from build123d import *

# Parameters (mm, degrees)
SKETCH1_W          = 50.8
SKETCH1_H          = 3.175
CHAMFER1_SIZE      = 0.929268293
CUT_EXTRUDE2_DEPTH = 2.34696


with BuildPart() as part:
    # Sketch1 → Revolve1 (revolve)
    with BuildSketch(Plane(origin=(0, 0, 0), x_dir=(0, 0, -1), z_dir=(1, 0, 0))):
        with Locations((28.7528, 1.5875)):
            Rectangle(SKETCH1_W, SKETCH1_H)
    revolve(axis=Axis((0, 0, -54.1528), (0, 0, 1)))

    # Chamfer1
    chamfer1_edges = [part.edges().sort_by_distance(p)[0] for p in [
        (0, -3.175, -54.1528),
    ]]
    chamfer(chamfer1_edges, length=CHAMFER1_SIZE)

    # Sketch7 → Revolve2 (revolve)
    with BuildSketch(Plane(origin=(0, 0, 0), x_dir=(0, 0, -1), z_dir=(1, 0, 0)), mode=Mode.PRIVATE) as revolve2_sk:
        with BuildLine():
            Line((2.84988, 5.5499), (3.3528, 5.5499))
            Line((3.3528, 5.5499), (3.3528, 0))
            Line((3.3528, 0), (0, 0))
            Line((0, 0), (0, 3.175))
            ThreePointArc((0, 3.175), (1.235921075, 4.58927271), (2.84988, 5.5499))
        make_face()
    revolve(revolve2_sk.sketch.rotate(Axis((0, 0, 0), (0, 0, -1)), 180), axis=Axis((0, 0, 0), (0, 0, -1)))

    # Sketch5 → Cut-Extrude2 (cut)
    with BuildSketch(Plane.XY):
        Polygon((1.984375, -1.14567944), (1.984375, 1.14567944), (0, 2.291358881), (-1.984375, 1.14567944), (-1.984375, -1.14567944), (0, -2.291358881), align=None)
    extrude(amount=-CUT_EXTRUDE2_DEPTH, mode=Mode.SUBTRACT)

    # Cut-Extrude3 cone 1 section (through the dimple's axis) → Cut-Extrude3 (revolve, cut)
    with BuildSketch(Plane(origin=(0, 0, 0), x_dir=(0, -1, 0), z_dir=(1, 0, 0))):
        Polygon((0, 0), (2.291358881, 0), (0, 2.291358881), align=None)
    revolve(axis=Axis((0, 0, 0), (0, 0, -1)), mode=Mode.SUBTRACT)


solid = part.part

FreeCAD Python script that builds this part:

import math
import FreeCAD as App
import Part
import Sketcher

V = App.Vector
Q = App.Units.Quantity


def edges_at(feature, points):
    """Names of the edges that pass closest to the given points."""
    edges = feature.Shape.Edges
    near = lambda p: min(range(len(edges)), key=lambda i: edges[i].distToShape(Part.Vertex(*p))[0])
    return sorted({f"Edge{near(p) + 1}" for p in points})

doc = App.newDocument("Part")
body = doc.addObject("PartDesign::Body", "Body")

# Sketch on YZ plane
sketch1 = body.newObject("Sketcher::SketchObject", "Sketch")
sketch1.AttachmentSupport = (doc.getObject("YZ_Plane"), [""])
sketch1.MapMode = "FlatFace"
sketch1.addGeometry(Part.LineSegment(V(3.2, -3.4, 0), V(0, -3.4, 0)), False)
sketch1.addGeometry(Part.LineSegment(V(0, -3.4, 0), V(0, -54.2, 0)), False)
sketch1.addGeometry(Part.LineSegment(V(0, -54.2, 0), V(3.2, -54.2, 0)), False)
sketch1.addGeometry(Part.LineSegment(V(3.2, -54.2, 0), V(3.2, -3.4, 0)), False)
sketch1.addConstraint(Sketcher.Constraint("Coincident", 0, 2, 1, 1))
sketch1.addConstraint(Sketcher.Constraint("Coincident", 1, 2, 2, 1))
sketch1.addConstraint(Sketcher.Constraint("Coincident", 2, 2, 3, 1))
sketch1.addConstraint(Sketcher.Constraint("Coincident", 3, 2, 0, 1))
sketch1.addConstraint(Sketcher.Constraint("Horizontal", 0))
sketch1.addConstraint(Sketcher.Constraint("Vertical", 1))
sketch1.addConstraint(Sketcher.Constraint("Horizontal", 2))
sketch1.addConstraint(Sketcher.Constraint("Vertical", 3))
sketch1.addConstraint(Sketcher.Constraint("PointOnObject", 0, 2, -2))
sketch1.addConstraint(Sketcher.Constraint("DistanceY", 1, 2, 1, 1, Q("2 in")))
sketch1.addConstraint(Sketcher.Constraint("DistanceX", 0, 2, 0, 1, Q("0.125 in")))
sketch1.addConstraint(Sketcher.Constraint("DistanceY", 0, 2, -1, 1, Q("0.132 in")))
revolution = body.newObject("PartDesign::Revolution", "Revolution")
revolution.Profile = sketch1
revolution.ReferenceAxis = (sketch1, ["V_Axis"])
revolution.Angle = 360
doc.recompute()

chamfer = body.newObject("PartDesign::Chamfer", "Chamfer")
chamfer.Base = (revolution, edges_at(revolution, [(0, -3.175, -54.153)]))
chamfer.Size = 0.929268

# Sketch on YZ plane
sketch2 = body.newObject("Sketcher::SketchObject", "Sketch001")
sketch2.AttachmentSupport = (doc.getObject("YZ_Plane"), [""])
sketch2.MapMode = "FlatFace"
sketch2.addGeometry(Part.LineSegment(V(5.5, -3.4, 0), V(5.5, -2.8, 0)), False)
sketch2.addGeometry(Part.ArcOfCircle(Part.Circle(V(0, -5.1, 0), V(0, 0, 1), 6), math.radians(22), math.radians(58)), False)
sketch2.addGeometry(Part.LineSegment(V(3.2, 0, 0), V(0, 0, 0)), False)
sketch2.addGeometry(Part.LineSegment(V(0, 0, 0), V(0, -3.4, 0)), False)
sketch2.addGeometry(Part.LineSegment(V(0, -3.4, 0), V(5.5, -3.4, 0)), False)
sketch2.addConstraint(Sketcher.Constraint("Coincident", 0, 2, 1, 1))
sketch2.addConstraint(Sketcher.Constraint("Coincident", 1, 2, 2, 1))
sketch2.addConstraint(Sketcher.Constraint("Coincident", 2, 2, 3, 1))
sketch2.addConstraint(Sketcher.Constraint("Coincident", 3, 2, 4, 1))
sketch2.addConstraint(Sketcher.Constraint("Coincident", 4, 2, 0, 1))
sketch2.addConstraint(Sketcher.Constraint("Vertical", 0))
sketch2.addConstraint(Sketcher.Constraint("Horizontal", 2))
sketch2.addConstraint(Sketcher.Constraint("Vertical", 3))
sketch2.addConstraint(Sketcher.Constraint("Horizontal", 4))
sketch2.addConstraint(Sketcher.Constraint("Coincident", 2, 2, -1, 1))
sketch2.addConstraint(Sketcher.Constraint("PointOnObject", 1, 3, -2))
sketch2.addConstraint(Sketcher.Constraint("DistanceX", 2, 2, 2, 1, Q("0.125 in")))
sketch2.addConstraint(Sketcher.Constraint("DistanceY", 3, 2, 3, 1, Q("0.132 in")))
sketch2.addConstraint(Sketcher.Constraint("DistanceX", 4, 1, 4, 2, Q("0.2185 in")))
sketch2.addConstraint(Sketcher.Constraint("DistanceY", 0, 1, 0, 2, Q("0.0198 in")))
revolution2 = body.newObject("PartDesign::Revolution", "Revolution001")
revolution2.Profile = sketch2
revolution2.ReferenceAxis = (sketch2, ["V_Axis"])
revolution2.Angle = 360

# Sketch on XY plane
sketch3 = body.newObject("Sketcher::SketchObject", "Sketch002")
sketch3.AttachmentSupport = (doc.getObject("XY_Plane"), [""])
sketch3.MapMode = "FlatFace"
sketch3.addGeometry(Part.LineSegment(V(2, -1.1, 0), V(2, 1.1, 0)), False)
sketch3.addGeometry(Part.LineSegment(V(2, 1.1, 0), V(0, 2.3, 0)), False)
sketch3.addGeometry(Part.LineSegment(V(0, 2.3, 0), V(-2, 1.1, 0)), False)
sketch3.addGeometry(Part.LineSegment(V(-2, 1.1, 0), V(-2, -1.1, 0)), False)
sketch3.addGeometry(Part.LineSegment(V(-2, -1.1, 0), V(0, -2.3, 0)), False)
sketch3.addGeometry(Part.LineSegment(V(0, -2.3, 0), V(2, -1.1, 0)), False)
sketch3.addConstraint(Sketcher.Constraint("Coincident", 0, 2, 1, 1))
sketch3.addConstraint(Sketcher.Constraint("Coincident", 1, 2, 2, 1))
sketch3.addConstraint(Sketcher.Constraint("Coincident", 2, 2, 3, 1))
sketch3.addConstraint(Sketcher.Constraint("Coincident", 3, 2, 4, 1))
sketch3.addConstraint(Sketcher.Constraint("Coincident", 4, 2, 5, 1))
sketch3.addConstraint(Sketcher.Constraint("Coincident", 5, 2, 0, 1))
sketch3.addConstraint(Sketcher.Constraint("Vertical", 0))
sketch3.addConstraint(Sketcher.Constraint("Vertical", 3))
sketch3.addConstraint(Sketcher.Constraint("Symmetric", 0, 2, 3, 2, -1, 1))
sketch3.addConstraint(Sketcher.Constraint("Symmetric", 1, 2, 4, 2, -1, 1))
sketch3.addConstraint(Sketcher.Constraint("PointOnObject", 1, 2, -2))
sketch3.addConstraint(Sketcher.Constraint("Parallel", 2, 5))
sketch3.addConstraint(Sketcher.Constraint("Horizontal", 0, 2, 2, 2))
sketch3.addConstraint(Sketcher.Constraint("Angle", 1, Q("150 deg")))
sketch3.addConstraint(Sketcher.Constraint("DistanceX", -1, 1, 0, 2, Q("0.078125 in")))
sketch3.addConstraint(Sketcher.Constraint("DistanceY", 0, 1, 0, 2, 2.291359))
pocket1 = body.newObject("PartDesign::Pocket", "Pocket")
pocket1.Profile = sketch3
pocket1.Length = Q("0.0924 in")

# Sketch on YZ plane
sketch4 = body.newObject("Sketcher::SketchObject", "Sketch003")
sketch4.AttachmentSupport = (doc.getObject("YZ_Plane"), [""])
sketch4.MapMode = "FlatFace"
sketch4.addGeometry(Part.LineSegment(V(0, 0, 0), V(-2.3, 0, 0)), False)
sketch4.addGeometry(Part.LineSegment(V(-2.3, 0, 0), V(0, -2.3, 0)), False)
sketch4.addGeometry(Part.LineSegment(V(0, -2.3, 0), V(0, 0, 0)), False)
sketch4.addConstraint(Sketcher.Constraint("Coincident", 0, 2, 1, 1))
sketch4.addConstraint(Sketcher.Constraint("Coincident", 1, 2, 2, 1))
sketch4.addConstraint(Sketcher.Constraint("Coincident", 2, 2, 0, 1))
sketch4.addConstraint(Sketcher.Constraint("Horizontal", 0))
sketch4.addConstraint(Sketcher.Constraint("Vertical", 2))
sketch4.addConstraint(Sketcher.Constraint("Coincident", 2, 2, -1, 1))
sketch4.addConstraint(Sketcher.Constraint("Equal", 0, 2))
sketch4.addConstraint(Sketcher.Constraint("DistanceX", 0, 2, 0, 1, 2.291359))
groove = body.newObject("PartDesign::Groove", "Groove")
groove.Profile = sketch4
groove.ReferenceAxis = (sketch4, ["V_Axis"])
groove.Angle = 360

doc.recompute()
